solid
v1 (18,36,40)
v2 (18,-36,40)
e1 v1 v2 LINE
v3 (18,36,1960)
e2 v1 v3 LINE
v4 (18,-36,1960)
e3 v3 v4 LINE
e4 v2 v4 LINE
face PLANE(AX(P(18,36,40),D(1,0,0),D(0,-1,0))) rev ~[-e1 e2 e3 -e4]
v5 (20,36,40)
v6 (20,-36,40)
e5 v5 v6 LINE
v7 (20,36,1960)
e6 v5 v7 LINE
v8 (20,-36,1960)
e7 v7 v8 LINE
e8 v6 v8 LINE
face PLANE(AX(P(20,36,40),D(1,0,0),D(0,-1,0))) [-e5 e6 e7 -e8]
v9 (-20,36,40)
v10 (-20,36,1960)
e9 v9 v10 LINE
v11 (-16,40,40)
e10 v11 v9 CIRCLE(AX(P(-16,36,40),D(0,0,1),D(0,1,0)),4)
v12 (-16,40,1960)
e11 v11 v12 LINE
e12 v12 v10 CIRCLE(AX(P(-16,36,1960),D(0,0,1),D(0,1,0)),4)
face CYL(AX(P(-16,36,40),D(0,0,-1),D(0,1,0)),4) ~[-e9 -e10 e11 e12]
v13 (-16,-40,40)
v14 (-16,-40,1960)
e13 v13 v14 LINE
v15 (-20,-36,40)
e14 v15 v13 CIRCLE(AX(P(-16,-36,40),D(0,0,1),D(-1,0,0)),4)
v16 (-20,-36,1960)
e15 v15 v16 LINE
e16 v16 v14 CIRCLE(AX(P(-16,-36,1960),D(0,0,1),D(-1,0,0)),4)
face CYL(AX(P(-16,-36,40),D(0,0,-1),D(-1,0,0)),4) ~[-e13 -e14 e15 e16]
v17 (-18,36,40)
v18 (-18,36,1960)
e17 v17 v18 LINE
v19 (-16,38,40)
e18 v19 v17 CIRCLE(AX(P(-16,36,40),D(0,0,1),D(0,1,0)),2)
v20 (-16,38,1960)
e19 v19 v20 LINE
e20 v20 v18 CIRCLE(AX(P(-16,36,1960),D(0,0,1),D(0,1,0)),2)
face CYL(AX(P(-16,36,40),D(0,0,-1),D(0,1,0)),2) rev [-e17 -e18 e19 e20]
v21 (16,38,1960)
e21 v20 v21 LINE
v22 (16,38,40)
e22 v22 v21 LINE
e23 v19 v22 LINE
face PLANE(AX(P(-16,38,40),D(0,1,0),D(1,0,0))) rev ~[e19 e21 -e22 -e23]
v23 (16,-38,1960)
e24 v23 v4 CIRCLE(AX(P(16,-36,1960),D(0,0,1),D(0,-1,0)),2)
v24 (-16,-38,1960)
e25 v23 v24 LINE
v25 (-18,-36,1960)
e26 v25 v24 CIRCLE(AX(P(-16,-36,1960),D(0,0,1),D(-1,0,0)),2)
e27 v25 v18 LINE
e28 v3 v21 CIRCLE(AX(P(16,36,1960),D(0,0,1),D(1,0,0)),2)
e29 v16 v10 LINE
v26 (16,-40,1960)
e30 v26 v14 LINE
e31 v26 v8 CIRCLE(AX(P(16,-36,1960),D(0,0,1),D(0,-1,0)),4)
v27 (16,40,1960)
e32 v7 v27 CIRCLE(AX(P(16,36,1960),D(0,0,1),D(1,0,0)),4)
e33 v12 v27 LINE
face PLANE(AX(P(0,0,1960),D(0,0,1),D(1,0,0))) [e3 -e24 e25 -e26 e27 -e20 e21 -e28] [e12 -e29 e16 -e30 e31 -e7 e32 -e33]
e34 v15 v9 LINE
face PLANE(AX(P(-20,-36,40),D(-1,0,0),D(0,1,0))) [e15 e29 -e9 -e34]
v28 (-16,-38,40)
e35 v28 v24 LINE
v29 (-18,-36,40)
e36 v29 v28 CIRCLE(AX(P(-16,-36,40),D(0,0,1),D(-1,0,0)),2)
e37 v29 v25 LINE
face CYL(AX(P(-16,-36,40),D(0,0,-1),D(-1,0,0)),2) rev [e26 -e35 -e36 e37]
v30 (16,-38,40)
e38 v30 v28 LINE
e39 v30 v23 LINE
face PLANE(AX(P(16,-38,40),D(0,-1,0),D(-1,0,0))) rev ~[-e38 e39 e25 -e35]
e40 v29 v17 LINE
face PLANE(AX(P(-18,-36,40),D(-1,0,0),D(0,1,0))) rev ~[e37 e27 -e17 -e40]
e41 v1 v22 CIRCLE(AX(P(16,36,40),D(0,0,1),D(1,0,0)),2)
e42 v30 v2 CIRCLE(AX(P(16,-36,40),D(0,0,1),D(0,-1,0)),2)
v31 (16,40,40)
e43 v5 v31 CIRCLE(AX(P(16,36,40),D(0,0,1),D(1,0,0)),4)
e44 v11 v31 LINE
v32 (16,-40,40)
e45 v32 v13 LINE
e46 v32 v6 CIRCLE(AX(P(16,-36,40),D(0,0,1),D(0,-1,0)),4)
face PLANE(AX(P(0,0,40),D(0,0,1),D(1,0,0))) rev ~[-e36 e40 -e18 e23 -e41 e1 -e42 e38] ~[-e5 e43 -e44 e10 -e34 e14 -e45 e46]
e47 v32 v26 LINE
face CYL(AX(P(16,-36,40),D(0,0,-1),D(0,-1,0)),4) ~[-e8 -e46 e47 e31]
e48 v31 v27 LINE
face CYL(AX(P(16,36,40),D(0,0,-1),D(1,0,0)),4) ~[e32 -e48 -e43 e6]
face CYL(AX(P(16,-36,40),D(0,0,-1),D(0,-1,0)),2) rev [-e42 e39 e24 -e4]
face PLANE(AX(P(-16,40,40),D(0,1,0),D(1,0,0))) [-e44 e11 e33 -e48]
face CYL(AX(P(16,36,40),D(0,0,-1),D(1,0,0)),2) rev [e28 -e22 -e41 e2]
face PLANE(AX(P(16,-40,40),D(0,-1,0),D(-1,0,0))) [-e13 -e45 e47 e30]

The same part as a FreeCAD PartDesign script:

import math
import FreeCAD as App
import Part
import Sketcher

V = App.Vector

doc = App.newDocument("Part")
body = doc.addObject("PartDesign::Body", "Body")

sketch1 = doc.addObject("Sketcher::SketchObject", "Sketch")
body.addObject(sketch1)
sketch1.AttachmentSupport = (doc.XY_Plane, [""])
sketch1.MapMode = "FlatFace"
sketch1.AttachmentOffset = App.Placement(V(0, 0, 40), App.Rotation())
sketch1.addGeometry([
    Part.LineSegment(V(-20, 36, 0), V(-20, -36, 0)),
    Part.ArcOfCircle(Part.Circle(V(-16, -36, 0), V(0, 0, 1), 4), math.radians(180), math.radians(270)),
    Part.LineSegment(V(-16, -40, 0), V(16, -40, 0)),
    Part.ArcOfCircle(Part.Circle(V(16, -36, 0), V(0, 0, 1), 4), math.radians(-90), math.radians(0)),
    Part.LineSegment(V(20, -36, 0), V(20, 36, 0)),
    Part.ArcOfCircle(Part.Circle(V(16, 36, 0), V(0, 0, 1), 4), math.radians(0), math.radians(90)),
    Part.LineSegment(V(16, 40, 0), V(-16, 40, 0)),
    Part.ArcOfCircle(Part.Circle(V(-16, 36, 0), V(0, 0, 1), 4), math.radians(90), math.radians(180)),
    Part.ArcOfCircle(Part.Circle(V(-16, 36, 0), V(0, 0, 1), 2), math.radians(90), math.radians(180)),
    Part.LineSegment(V(-16, 38, 0), V(16, 38, 0)),
    Part.ArcOfCircle(Part.Circle(V(16, 36, 0), V(0, 0, 1), 2), math.radians(0), math.radians(90)),
    Part.LineSegment(V(18, 36, 0), V(18, -36, 0)),
    Part.ArcOfCircle(Part.Circle(V(16, -36, 0), V(0, 0, 1), 2), math.radians(-90), math.radians(0)),
    Part.LineSegment(V(16, -38, 0), V(-16, -38, 0)),
    Part.ArcOfCircle(Part.Circle(V(-16, -36, 0), V(0, 0, 1), 2), math.radians(180), math.radians(270)),
    Part.LineSegment(V(-18, -36, 0), V(-18, 36, 0)),
], False)
sketch1.addConstraint([
    Sketcher.Constraint("Tangent", 0, 2, 1, 1),
    Sketcher.Constraint("Tangent", 1, 2, 2, 1),
    Sketcher.Constraint("Tangent", 2, 2, 3, 1),
    Sketcher.Constraint("Tangent", 3, 2, 4, 1),
    Sketcher.Constraint("Tangent", 4, 2, 5, 1),
    Sketcher.Constraint("Tangent", 5, 2, 6, 1),
    Sketcher.Constraint("Tangent", 6, 2, 7, 1),
    Sketcher.Constraint("Tangent", 7, 2, 0, 1),
    Sketcher.Constraint("Tangent", 8, 1, 9, 1),
    Sketcher.Constraint("Tangent", 9, 2, 10, 2),
    Sketcher.Constraint("Tangent", 10, 1, 11, 1),
    Sketcher.Constraint("Tangent", 11, 2, 12, 2),
    Sketcher.Constraint("Tangent", 12, 1, 13, 1),
    Sketcher.Constraint("Tangent", 13, 2, 14, 2),
    Sketcher.Constraint("Tangent", 14, 1, 15, 1),
    Sketcher.Constraint("Tangent", 15, 2, 8, 2),
    Sketcher.Constraint("Vertical", 0),
    Sketcher.Constraint("Horizontal", 2),
    Sketcher.Constraint("Vertical", 4),
    Sketcher.Constraint("Horizontal", 6),
    Sketcher.Constraint("Horizontal", 9),
    Sketcher.Constraint("Vertical", 11),
    Sketcher.Constraint("Horizontal", 13),
    Sketcher.Constraint("Vertical", 15),
    Sketcher.Constraint("Coincident", 8, 3, 7, 3),
    Sketcher.Constraint("Coincident", 10, 3, 5, 3),
    Sketcher.Constraint("Coincident", 12, 3, 3, 3),
    Sketcher.Constraint("Equal", 1, 3),
    Sketcher.Constraint("Equal", 3, 5),
    Sketcher.Constraint("Equal", 5, 7),
    Sketcher.Constraint("Equal", 12, 14),
    Sketcher.Constraint("Symmetric", 1, 3, 5, 3, -1, 1),
    Sketcher.Constraint("Radius", 1, 4.0),
    Sketcher.Constraint("Radius", 8, 2.0),
    Sketcher.Constraint("DistanceX", 0, 2, -1, 1, 20.0),
    Sketcher.Constraint("DistanceY", 1, 2, -1, 1, 40.0),
])
pad1 = doc.addObject("PartDesign::Pad", "Pad")
body.addObject(pad1)
pad1.Profile = sketch1
pad1.Length = 1920

doc.recompute()
